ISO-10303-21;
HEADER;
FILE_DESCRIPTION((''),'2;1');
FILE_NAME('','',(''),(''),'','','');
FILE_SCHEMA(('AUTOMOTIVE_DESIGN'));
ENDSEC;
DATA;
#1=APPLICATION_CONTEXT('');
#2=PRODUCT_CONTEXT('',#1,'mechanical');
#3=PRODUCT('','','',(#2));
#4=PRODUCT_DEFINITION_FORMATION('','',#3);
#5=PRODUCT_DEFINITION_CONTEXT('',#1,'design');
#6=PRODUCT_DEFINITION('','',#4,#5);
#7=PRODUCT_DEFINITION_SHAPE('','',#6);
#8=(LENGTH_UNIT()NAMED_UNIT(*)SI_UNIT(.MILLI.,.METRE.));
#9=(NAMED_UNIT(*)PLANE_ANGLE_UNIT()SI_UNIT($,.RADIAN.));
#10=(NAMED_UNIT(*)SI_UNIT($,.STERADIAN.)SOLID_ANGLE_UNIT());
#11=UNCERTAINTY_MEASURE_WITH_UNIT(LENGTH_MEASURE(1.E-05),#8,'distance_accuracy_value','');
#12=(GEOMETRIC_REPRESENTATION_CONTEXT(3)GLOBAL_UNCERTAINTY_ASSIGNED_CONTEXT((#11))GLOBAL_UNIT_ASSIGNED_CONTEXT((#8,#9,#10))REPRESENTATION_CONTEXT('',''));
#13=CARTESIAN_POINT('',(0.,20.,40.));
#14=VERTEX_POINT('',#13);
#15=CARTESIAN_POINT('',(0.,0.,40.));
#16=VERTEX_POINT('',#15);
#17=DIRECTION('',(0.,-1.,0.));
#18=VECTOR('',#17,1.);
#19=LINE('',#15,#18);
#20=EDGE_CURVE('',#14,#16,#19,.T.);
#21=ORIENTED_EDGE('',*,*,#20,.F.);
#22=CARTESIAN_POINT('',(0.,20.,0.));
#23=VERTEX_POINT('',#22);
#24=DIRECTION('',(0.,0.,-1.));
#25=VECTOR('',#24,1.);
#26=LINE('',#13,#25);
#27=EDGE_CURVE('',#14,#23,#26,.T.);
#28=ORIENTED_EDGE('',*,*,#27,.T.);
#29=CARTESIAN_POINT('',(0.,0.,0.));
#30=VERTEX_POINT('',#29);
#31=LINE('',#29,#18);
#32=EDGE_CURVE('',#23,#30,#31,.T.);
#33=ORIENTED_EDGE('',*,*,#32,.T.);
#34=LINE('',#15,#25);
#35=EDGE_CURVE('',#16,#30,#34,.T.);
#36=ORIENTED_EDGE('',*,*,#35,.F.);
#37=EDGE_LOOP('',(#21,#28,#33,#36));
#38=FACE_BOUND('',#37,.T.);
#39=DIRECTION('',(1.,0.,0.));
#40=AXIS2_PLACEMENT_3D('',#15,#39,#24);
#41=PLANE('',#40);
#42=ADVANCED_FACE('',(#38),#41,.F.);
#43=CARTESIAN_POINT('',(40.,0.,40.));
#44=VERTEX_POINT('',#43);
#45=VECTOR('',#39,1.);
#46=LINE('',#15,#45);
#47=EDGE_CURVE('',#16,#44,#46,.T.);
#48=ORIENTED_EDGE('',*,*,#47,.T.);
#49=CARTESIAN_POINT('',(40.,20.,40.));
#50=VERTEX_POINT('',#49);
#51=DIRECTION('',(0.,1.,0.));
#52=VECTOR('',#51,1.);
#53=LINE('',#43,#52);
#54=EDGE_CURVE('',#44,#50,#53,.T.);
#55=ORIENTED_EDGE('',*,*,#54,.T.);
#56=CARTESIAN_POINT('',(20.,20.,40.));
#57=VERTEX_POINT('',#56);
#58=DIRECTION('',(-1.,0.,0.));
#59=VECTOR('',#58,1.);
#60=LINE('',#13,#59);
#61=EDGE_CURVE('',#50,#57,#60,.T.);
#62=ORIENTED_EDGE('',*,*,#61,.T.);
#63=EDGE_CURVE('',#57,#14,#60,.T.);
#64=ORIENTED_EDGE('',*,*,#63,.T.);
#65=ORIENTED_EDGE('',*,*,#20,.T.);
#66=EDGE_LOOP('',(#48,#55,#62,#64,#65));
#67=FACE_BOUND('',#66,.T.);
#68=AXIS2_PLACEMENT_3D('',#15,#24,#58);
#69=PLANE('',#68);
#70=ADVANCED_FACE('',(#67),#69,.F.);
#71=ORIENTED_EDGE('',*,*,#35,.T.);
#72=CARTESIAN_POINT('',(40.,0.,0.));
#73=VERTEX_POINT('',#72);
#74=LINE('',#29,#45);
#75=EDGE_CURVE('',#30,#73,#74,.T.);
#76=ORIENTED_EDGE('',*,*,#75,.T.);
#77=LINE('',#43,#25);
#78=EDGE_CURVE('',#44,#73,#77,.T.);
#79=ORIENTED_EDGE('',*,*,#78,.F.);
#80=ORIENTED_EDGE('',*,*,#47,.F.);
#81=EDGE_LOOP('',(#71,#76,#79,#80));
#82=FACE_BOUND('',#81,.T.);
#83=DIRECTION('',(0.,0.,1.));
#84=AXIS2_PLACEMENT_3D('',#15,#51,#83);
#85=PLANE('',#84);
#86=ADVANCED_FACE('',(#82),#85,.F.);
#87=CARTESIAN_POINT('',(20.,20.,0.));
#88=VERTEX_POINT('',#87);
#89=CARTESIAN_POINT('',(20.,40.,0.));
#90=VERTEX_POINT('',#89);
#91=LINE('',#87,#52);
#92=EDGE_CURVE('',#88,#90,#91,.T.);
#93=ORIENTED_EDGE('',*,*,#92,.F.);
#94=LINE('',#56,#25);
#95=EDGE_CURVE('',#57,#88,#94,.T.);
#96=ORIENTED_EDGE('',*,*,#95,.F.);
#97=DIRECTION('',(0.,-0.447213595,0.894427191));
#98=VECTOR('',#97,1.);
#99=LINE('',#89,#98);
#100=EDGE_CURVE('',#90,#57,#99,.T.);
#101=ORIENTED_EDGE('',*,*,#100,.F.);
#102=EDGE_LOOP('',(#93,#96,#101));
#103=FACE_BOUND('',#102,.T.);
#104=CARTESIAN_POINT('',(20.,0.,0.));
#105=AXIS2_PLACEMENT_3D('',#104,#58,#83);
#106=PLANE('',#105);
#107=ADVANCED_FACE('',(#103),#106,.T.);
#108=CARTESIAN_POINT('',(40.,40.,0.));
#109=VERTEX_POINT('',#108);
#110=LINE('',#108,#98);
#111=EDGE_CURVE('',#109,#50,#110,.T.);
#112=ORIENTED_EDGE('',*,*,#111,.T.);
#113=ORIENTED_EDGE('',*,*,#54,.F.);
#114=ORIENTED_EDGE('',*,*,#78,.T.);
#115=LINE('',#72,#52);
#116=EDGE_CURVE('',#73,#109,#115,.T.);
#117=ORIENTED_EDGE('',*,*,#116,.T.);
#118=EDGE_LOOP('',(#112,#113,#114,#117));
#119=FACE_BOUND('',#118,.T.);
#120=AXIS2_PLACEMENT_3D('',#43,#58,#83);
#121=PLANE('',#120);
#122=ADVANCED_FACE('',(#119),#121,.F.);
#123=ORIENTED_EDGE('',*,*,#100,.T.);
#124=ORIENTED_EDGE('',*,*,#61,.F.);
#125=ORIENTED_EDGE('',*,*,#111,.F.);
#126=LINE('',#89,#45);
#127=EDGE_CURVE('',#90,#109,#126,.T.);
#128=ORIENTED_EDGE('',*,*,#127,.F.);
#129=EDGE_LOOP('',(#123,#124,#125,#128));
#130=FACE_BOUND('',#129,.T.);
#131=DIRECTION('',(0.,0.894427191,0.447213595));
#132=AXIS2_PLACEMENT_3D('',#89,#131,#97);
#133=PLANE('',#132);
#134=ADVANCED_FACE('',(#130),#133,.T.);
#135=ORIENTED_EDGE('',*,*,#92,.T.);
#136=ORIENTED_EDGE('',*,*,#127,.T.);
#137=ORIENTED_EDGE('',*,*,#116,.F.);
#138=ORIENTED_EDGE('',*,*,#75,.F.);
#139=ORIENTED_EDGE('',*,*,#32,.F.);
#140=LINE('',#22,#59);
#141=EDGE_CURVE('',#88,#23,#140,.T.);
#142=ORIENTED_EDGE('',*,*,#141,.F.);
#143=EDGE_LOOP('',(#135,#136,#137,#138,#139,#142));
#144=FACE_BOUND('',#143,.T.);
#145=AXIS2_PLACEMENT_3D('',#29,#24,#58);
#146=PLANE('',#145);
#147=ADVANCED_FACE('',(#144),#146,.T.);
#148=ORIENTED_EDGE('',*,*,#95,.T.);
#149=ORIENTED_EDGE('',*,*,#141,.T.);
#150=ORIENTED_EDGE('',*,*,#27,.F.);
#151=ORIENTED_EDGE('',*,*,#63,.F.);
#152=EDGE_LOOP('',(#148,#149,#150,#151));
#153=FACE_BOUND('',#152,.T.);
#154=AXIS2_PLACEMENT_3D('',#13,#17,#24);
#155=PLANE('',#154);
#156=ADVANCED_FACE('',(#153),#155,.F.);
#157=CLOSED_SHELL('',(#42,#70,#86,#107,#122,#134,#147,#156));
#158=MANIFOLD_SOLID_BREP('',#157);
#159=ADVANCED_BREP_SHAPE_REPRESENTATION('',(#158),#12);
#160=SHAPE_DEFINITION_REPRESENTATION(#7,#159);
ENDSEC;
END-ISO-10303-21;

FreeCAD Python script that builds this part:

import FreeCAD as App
import Part
import Sketcher

V = App.Vector

doc = App.newDocument("Part")
body = doc.addObject("PartDesign::Body", "Body")

sketch1 = body.newObject("Sketcher::SketchObject", "Sketch")
sketch1.AttachmentSupport = (doc.getObject("XY_Plane"), [""])
sketch1.MapMode = "FlatFace"
sketch1.addGeometry(Part.LineSegment(V(0, 20, 0), V(0, 0, 0)), False)
sketch1.addGeometry(Part.LineSegment(V(0, 0, 0), V(40, 0, 0)), False)
sketch1.addGeometry(Part.LineSegment(V(40, 0, 0), V(40, 20, 0)), False)
sketch1.addGeometry(Part.LineSegment(V(40, 20, 0), V(0, 20, 0)), False)
sketch1.addConstraint(Sketcher.Constraint("Coincident", 0, 2, 1, 1))
sketch1.addConstraint(Sketcher.Constraint("Coincident", 1, 2, 2, 1))
sketch1.addConstraint(Sketcher.Constraint("Coincident", 2, 2, 3, 1))
sketch1.addConstraint(Sketcher.Constraint("Coincident", 3, 2, 0, 1))
sketch1.addConstraint(Sketcher.Constraint("Vertical", 0))
sketch1.addConstraint(Sketcher.Constraint("Horizontal", 1))
sketch1.addConstraint(Sketcher.Constraint("Vertical", 2))
sketch1.addConstraint(Sketcher.Constraint("Horizontal", 3))
sketch1.addConstraint(Sketcher.Constraint("Coincident", 0, 2, -1, 1))
sketch1.addConstraint(Sketcher.Constraint("DistanceX", 1, 1, 1, 2, 40.0))
sketch1.addConstraint(Sketcher.Constraint("DistanceY", 0, 2, 0, 1, 20.0))
pad1 = body.newObject("PartDesign::Pad", "Pad")
pad1.Profile = sketch1
pad1.Length = 40

sketch2 = body.newObject("Sketcher::SketchObject", "Sketch001")
sketch2.AttachmentSupport = (doc.getObject("YZ_Plane"), [""])
sketch2.MapMode = "FlatFace"
sketch2.AttachmentOffset = App.Placement(V(0, 0, 40), App.Rotation())
sketch2.addGeometry(Part.LineSegment(V(20, 40, 0), V(20, 0, 0)), False)
sketch2.addGeometry(Part.LineSegment(V(20, 0, 0), V(40, 0, 0)), False)
sketch2.addGeometry(Part.LineSegment(V(40, 0, 0), V(20, 40, 0)), False)
sketch2.addConstraint(Sketcher.Constraint("Coincident", 0, 2, 1, 1))
sketch2.addConstraint(Sketcher.Constraint("Coincident", 1, 2, 2, 1))
sketch2.addConstraint(Sketcher.Constraint("Coincident", 2, 2, 0, 1))
sketch2.addConstraint(Sketcher.Constraint("Vertical", 0))
sketch2.addConstraint(Sketcher.Constraint("Horizontal", 1))
sketch2.addConstraint(Sketcher.Constraint("PointOnObject", 0, 2, -1))
sketch2.addConstraint(Sketcher.Constraint("DistanceX", 1, 1, 1, 2, 20.0))
sketch2.addConstraint(Sketcher.Constraint("DistanceY", 0, 2, 0, 1, 40.0))
sketch2.addConstraint(Sketcher.Constraint("DistanceX", -1, 1, 0, 2, 20.0))
pad2 = body.newObject("PartDesign::Pad", "Pad001")
pad2.Profile = sketch2
pad2.Length = 20
pad2.Reversed = True

doc.recompute()
